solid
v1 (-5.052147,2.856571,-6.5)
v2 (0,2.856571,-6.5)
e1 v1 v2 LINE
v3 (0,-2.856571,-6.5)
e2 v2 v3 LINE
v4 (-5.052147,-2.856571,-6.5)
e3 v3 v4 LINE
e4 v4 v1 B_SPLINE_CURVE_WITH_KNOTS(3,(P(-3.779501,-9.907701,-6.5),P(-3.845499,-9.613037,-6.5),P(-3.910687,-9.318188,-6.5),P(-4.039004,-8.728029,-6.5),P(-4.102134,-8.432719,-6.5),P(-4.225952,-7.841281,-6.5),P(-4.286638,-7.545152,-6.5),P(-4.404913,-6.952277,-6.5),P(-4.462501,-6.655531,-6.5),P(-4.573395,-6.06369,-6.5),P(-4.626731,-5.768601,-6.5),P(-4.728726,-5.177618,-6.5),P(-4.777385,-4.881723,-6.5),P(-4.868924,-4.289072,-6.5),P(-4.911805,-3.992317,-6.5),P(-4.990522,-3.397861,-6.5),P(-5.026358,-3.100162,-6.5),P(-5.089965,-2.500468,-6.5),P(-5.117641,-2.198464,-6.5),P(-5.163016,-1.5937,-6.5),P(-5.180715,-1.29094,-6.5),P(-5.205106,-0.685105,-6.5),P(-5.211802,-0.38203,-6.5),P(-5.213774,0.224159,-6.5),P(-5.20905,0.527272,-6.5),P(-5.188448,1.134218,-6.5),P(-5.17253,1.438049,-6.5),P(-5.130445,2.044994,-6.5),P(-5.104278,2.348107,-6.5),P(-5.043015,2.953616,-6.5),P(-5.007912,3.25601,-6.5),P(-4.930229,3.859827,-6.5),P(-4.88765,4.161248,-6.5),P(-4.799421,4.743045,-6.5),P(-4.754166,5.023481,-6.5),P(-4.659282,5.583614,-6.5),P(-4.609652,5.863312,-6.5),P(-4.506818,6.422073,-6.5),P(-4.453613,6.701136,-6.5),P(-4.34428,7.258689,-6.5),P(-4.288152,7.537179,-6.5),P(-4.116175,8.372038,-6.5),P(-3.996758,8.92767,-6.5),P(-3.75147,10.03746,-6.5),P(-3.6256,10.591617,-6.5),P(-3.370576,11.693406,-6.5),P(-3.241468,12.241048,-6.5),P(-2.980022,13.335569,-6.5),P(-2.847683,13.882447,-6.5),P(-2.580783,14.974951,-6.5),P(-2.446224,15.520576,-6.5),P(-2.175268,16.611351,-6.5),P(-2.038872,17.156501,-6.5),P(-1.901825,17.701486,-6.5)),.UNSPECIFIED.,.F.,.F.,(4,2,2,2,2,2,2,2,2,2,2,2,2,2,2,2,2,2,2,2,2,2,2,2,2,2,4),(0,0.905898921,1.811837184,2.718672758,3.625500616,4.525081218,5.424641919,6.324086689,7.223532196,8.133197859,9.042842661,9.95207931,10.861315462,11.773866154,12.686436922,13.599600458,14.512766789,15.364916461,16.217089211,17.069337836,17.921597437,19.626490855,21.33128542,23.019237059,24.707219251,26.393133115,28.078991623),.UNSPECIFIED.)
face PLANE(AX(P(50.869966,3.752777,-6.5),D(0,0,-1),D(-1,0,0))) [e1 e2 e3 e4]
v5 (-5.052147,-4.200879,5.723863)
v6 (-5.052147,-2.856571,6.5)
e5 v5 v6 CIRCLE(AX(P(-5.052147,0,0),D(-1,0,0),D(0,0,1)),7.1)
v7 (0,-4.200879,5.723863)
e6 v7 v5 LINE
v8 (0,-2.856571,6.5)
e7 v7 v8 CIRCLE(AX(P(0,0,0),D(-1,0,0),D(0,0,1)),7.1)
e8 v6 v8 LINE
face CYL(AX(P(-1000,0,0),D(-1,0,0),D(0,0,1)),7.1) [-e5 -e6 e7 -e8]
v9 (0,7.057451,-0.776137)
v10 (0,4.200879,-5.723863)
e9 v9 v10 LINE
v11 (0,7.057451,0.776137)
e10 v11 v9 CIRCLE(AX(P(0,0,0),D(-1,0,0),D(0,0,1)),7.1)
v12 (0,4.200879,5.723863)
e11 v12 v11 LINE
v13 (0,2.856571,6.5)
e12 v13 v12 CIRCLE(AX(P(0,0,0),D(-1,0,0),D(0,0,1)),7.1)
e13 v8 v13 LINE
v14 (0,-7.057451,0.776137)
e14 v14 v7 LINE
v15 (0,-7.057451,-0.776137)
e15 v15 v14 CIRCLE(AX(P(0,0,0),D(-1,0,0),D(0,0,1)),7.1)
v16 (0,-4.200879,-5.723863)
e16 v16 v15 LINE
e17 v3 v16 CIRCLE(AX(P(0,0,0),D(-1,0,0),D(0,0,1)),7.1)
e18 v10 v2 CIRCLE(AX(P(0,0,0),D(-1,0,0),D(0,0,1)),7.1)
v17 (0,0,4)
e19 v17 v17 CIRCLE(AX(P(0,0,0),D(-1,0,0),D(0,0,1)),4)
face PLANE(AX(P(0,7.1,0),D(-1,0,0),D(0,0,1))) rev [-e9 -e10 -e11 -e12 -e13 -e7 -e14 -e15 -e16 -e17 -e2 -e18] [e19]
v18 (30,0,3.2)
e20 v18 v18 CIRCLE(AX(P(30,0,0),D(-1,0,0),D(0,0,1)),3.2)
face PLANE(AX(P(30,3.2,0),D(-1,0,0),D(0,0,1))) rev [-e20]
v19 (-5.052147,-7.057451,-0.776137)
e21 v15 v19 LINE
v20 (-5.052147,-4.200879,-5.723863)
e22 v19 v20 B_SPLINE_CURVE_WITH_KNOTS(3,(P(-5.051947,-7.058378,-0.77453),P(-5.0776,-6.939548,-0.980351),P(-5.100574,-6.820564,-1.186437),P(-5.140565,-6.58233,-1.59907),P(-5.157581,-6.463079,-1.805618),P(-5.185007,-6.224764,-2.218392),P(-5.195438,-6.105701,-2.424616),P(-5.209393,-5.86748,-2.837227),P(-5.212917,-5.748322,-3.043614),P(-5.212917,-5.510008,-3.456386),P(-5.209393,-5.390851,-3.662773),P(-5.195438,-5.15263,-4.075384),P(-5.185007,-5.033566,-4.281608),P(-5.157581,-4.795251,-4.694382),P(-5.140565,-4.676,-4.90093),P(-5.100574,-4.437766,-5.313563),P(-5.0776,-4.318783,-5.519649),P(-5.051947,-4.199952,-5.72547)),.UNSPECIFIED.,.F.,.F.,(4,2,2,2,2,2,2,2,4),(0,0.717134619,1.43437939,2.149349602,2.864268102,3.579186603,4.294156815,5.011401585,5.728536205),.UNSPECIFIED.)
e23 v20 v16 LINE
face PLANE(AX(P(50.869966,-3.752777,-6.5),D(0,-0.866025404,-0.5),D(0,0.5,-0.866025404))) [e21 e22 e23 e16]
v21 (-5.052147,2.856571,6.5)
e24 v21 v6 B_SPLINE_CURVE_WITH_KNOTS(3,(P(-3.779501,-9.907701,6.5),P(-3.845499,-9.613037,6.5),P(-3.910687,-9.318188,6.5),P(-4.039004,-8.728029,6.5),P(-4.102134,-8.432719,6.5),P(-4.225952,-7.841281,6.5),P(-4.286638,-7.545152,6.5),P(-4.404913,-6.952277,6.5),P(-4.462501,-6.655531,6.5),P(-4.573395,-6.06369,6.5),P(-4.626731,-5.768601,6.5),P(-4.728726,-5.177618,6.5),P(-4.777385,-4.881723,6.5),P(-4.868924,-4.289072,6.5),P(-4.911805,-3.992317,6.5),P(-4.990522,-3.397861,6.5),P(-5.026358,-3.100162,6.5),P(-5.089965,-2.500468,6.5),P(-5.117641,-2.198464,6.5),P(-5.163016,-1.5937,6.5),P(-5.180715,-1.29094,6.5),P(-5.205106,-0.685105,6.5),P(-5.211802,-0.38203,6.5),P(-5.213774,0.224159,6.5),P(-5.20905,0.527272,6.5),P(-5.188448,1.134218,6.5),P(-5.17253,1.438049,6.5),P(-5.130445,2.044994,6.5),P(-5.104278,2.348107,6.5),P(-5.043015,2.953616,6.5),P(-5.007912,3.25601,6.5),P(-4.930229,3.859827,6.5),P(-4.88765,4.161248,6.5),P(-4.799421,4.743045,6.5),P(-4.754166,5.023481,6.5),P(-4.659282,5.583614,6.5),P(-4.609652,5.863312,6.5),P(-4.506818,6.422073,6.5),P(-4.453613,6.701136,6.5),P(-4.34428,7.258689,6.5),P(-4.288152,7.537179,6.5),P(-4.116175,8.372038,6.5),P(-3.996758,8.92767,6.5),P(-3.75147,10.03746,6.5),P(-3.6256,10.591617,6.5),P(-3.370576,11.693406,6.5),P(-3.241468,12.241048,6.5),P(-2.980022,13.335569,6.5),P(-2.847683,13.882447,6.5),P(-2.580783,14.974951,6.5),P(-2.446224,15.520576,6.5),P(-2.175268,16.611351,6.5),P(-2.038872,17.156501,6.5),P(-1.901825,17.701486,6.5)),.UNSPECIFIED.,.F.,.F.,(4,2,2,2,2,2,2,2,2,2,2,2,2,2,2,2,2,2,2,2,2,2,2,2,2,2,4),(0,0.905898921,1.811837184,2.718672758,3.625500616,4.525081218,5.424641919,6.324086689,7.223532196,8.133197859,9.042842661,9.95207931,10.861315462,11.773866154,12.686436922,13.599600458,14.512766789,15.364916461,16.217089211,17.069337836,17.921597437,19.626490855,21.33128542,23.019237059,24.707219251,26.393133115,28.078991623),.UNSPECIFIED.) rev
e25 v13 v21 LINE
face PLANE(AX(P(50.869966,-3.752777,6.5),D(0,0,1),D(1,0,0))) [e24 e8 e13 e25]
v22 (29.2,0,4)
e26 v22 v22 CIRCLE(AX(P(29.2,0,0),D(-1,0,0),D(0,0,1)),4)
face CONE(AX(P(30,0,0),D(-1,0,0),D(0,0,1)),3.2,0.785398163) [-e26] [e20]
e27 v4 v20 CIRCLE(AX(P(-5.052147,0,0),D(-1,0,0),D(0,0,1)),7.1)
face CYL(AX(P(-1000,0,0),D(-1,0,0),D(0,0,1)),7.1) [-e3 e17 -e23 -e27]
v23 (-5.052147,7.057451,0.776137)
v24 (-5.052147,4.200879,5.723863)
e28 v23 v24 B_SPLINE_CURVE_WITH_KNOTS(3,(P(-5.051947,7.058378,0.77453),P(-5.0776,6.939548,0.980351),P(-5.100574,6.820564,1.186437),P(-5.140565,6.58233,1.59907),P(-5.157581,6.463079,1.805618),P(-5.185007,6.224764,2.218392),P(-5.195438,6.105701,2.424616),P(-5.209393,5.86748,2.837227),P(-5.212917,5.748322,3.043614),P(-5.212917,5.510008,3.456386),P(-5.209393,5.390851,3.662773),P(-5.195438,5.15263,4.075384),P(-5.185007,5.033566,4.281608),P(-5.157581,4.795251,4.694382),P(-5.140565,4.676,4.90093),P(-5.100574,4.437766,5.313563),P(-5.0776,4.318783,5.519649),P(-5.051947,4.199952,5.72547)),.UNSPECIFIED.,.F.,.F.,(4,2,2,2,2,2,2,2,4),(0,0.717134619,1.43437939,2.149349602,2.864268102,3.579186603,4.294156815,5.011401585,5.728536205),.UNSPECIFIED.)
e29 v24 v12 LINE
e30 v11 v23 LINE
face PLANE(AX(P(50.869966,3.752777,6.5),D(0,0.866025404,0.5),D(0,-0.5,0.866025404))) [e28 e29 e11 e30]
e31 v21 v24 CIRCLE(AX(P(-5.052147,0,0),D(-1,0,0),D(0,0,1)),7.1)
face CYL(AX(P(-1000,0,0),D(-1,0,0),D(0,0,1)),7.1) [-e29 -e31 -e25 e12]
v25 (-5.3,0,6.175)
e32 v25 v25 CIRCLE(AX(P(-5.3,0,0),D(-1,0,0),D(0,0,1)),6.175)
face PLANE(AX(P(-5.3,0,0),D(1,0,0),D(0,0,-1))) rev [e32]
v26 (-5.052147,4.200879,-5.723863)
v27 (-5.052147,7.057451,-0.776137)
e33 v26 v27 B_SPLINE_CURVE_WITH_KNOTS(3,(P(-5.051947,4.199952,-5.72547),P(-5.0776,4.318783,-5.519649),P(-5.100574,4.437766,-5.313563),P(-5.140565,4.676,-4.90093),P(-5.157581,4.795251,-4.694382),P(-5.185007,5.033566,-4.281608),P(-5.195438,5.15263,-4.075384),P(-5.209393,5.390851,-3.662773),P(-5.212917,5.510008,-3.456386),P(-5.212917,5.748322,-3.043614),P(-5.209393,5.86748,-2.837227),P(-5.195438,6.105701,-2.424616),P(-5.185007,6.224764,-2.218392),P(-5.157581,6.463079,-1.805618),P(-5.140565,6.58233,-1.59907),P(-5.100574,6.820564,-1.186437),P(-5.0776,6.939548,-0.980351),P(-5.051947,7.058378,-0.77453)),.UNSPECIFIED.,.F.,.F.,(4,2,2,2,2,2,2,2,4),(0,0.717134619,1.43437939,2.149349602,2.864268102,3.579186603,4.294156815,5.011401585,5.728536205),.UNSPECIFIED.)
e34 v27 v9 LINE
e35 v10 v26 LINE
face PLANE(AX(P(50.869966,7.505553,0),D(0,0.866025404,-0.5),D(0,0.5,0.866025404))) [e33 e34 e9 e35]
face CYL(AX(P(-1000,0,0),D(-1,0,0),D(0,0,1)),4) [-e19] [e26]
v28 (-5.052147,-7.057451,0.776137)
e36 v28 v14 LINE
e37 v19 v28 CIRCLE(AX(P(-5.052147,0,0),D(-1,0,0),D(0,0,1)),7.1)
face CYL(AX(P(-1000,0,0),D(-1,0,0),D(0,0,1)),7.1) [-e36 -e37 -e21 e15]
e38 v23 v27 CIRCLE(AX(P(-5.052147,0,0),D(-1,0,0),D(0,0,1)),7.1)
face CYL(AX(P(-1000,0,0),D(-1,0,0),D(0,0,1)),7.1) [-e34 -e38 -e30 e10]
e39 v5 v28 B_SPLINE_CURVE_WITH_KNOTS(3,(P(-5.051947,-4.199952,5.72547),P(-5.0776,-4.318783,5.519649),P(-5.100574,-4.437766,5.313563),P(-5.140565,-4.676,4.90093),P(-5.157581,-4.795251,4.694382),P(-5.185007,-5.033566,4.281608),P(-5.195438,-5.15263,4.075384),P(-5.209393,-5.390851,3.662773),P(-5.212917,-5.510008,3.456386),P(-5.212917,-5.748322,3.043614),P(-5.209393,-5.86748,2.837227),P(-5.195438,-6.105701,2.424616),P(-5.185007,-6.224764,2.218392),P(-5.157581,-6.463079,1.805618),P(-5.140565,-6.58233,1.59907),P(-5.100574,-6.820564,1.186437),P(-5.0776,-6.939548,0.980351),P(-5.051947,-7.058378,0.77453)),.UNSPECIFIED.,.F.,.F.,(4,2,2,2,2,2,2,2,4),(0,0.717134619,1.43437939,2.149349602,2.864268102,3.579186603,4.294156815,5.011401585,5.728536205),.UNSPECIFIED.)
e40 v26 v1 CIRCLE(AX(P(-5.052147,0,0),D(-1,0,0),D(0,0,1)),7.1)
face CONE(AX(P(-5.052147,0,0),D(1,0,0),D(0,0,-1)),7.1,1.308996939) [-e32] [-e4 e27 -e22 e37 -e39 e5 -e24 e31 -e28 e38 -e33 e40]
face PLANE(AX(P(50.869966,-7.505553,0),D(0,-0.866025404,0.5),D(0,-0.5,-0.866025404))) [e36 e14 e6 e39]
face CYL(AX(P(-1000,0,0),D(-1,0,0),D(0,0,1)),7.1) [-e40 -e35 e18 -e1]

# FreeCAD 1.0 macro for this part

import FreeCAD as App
import Part
import Sketcher
from FreeCAD import Vector
Q = App.Units.Quantity

doc = App.newDocument("Part")
params = doc.addObject("Spreadsheet::Sheet", "Params")
for row, (alias, value) in enumerate([
    ("sketch1_width", "35.3 mm"),
    ("sketch1_width2", "29.2 mm"),
    ("sketch1_height", "3.2 mm"),
    ("sketch1_height2", "3.1 mm"),
    ("revolution_angle", "360 deg"),
    ("pocket1_length", "35.3 mm"),
], start=1):
    params.set(f"A{row}", alias)
    params.set(f"B{row}", "=" + value)
    params.setAlias(f"B{row}", alias)

body = doc.addObject("PartDesign::Body", "Body")

# Sketch on XY plane
sketch1 = body.newObject("Sketcher::SketchObject", "Sketch")
sketch1.AttachmentSupport = (doc.getObject("XY_Plane"), [""])
sketch1.MapMode = "FlatFace"
sketch1.addGeometry([
    Part.LineSegment(Vector(-5.3, 6.2, 0), Vector(-5.3, 0, 0)),  # 0
    Part.LineSegment(Vector(-5.3, 0, 0), Vector(30, 0, 0)),  # 1
    Part.LineSegment(Vector(30, 0, 0), Vector(30, 3.2, 0)),  # 2
    Part.LineSegment(Vector(30, 3.2, 0), Vector(29.2, 4, 0)),  # 3
    Part.LineSegment(Vector(29.2, 4, 0), Vector(0, 4, 0)),  # 4
    Part.LineSegment(Vector(0, 4, 0), Vector(0, 7.1, 0)),  # 5
    Part.LineSegment(Vector(0, 7.1, 0), Vector(-5.1, 7.1, 0)),  # 6
    Part.LineSegment(Vector(-5.1, 7.1, 0), Vector(-5.3, 6.2, 0)),  # 7
], False)
sketch1.addConstraint([
    Sketcher.Constraint("Coincident", 0, 2, 1, 1),
    Sketcher.Constraint("Coincident", 1, 2, 2, 1),
    Sketcher.Constraint("Coincident", 2, 2, 3, 1),
    Sketcher.Constraint("Coincident", 3, 2, 4, 1),
    Sketcher.Constraint("Coincident", 4, 2, 5, 1),
    Sketcher.Constraint("Coincident", 5, 2, 6, 1),
    Sketcher.Constraint("Coincident", 6, 2, 7, 1),
    Sketcher.Constraint("Coincident", 7, 2, 0, 1),
    Sketcher.Constraint("Vertical", 0),
    Sketcher.Constraint("Horizontal", 1),
    Sketcher.Constraint("Vertical", 2),
    Sketcher.Constraint("Horizontal", 4),
    Sketcher.Constraint("Vertical", 5),
    Sketcher.Constraint("Horizontal", 6),
    Sketcher.Constraint("PointOnObject", 0, 2, -1),
    Sketcher.Constraint("PointOnObject", 4, 2, -2),
    Sketcher.Constraint("Angle", 3, Q("135 deg")),
    Sketcher.Constraint("Angle", 7, Q("-105 deg")),
    Sketcher.Constraint("DistanceX", 1, 1, 1, 2, 35.3),
    Sketcher.Constraint("DistanceX", 4, 2, 4, 1, 29.2),
    Sketcher.Constraint("DistanceY", 2, 1, 2, 2, 3.2),
    Sketcher.Constraint("DistanceY", 5, 1, 5, 2, 3.1),
    Sketcher.Constraint("DistanceX", -1, 1, 1, 2, 30.0),
    Sketcher.Constraint("DistanceY", 0, 2, 0, 1, 6.175),
])
sketch1.setExpression("Constraints[18]", "Params.sketch1_width")
sketch1.setExpression("Constraints[19]", "Params.sketch1_width2")
sketch1.setExpression("Constraints[20]", "Params.sketch1_height")
sketch1.setExpression("Constraints[21]", "Params.sketch1_height2")
revolution = body.newObject("PartDesign::Revolution", "Revolution")
revolution.Profile = sketch1
revolution.ReferenceAxis = (sketch1, ["H_Axis"])
revolution.setExpression("Angle", "Params.revolution_angle")

# Sketch on YZ plane
sketch2 = body.newObject("Sketcher::SketchObject", "Sketch001")
sketch2.AttachmentSupport = (doc.getObject("YZ_Plane"), [""])
sketch2.MapMode = "FlatFace"
sketch2.AttachmentOffset = App.Placement(Vector(0, 0, -5.3), App.Rotation())
sketch2.addGeometry([
    Part.LineSegment(Vector(12, -12, 0), Vector(-12, -12, 0)),  # 0
    Part.LineSegment(Vector(-12, -12, 0), Vector(-12, 12, 0)),  # 1
    Part.LineSegment(Vector(-12, 12, 0), Vector(12, 12, 0)),  # 2
    Part.LineSegment(Vector(12, 12, 0), Vector(12, -12, 0)),  # 3
    Part.LineSegment(Vector(4, -6, 0), Vector(8, 0, 0)),  # 4
    Part.LineSegment(Vector(8, 0, 0), Vector(4, 6, 0)),  # 5
    Part.LineSegment(Vector(4, 6, 0), Vector(-4, 6, 0)),  # 6
    Part.LineSegment(Vector(-4, 6, 0), Vector(-8, 0, 0)),  # 7
    Part.LineSegment(Vector(-8, 0, 0), Vector(-4, -6, 0)),  # 8
    Part.LineSegment(Vector(-4, -6, 0), Vector(4, -6, 0)),  # 9
], False)
sketch2.addConstraint([
    Sketcher.Constraint("Coincident", 0, 2, 1, 1),
    Sketcher.Constraint("Coincident", 1, 2, 2, 1),
    Sketcher.Constraint("Coincident", 2, 2, 3, 1),
    Sketcher.Constraint("Coincident", 3, 2, 0, 1),
    Sketcher.Constraint("Coincident", 4, 2, 5, 1),
    Sketcher.Constraint("Coincident", 5, 2, 6, 1),
    Sketcher.Constraint("Coincident", 6, 2, 7, 1),
    Sketcher.Constraint("Coincident", 7, 2, 8, 1),
    Sketcher.Constraint("Coincident", 8, 2, 9, 1),
    Sketcher.Constraint("Coincident", 9, 2, 4, 1),
    Sketcher.Constraint("Horizontal", 0),
    Sketcher.Constraint("Vertical", 1),
    Sketcher.Constraint("Horizontal", 2),
    Sketcher.Constraint("Vertical", 3),
    Sketcher.Constraint("Horizontal", 6),
    Sketcher.Constraint("Horizontal", 9),
    Sketcher.Constraint("Symmetric", 0, 2, 2, 2, -1, 1),
    Sketcher.Constraint("Symmetric", 4, 2, 7, 2, -1, 1),
    Sketcher.Constraint("Symmetric", 5, 2, 8, 2, -1, 1),
    Sketcher.Constraint("PointOnObject", 4, 2, -1),
    Sketcher.Constraint("Parallel", 4, 7),
    Sketcher.Constraint("Vertical", 6, 2, 8, 2),
    Sketcher.Constraint("Equal", 2, 1),
    Sketcher.Constraint("Angle", 4, Q("60 deg")),
    Sketcher.Constraint("DistanceY", 8, 2, 6, 2, 13.0),
    Sketcher.Constraint("DistanceX", 0, 2, 0, 1, 24.322),
    Sketcher.Constraint("DistanceX", 6, 2, 6, 1, 7.505554),
])
pocket1 = body.newObject("PartDesign::Pocket", "Pocket")
pocket1.Profile = sketch2
pocket1.setExpression("Length", "Params.pocket1_length")
pocket1.Reversed = True

doc.recompute()
